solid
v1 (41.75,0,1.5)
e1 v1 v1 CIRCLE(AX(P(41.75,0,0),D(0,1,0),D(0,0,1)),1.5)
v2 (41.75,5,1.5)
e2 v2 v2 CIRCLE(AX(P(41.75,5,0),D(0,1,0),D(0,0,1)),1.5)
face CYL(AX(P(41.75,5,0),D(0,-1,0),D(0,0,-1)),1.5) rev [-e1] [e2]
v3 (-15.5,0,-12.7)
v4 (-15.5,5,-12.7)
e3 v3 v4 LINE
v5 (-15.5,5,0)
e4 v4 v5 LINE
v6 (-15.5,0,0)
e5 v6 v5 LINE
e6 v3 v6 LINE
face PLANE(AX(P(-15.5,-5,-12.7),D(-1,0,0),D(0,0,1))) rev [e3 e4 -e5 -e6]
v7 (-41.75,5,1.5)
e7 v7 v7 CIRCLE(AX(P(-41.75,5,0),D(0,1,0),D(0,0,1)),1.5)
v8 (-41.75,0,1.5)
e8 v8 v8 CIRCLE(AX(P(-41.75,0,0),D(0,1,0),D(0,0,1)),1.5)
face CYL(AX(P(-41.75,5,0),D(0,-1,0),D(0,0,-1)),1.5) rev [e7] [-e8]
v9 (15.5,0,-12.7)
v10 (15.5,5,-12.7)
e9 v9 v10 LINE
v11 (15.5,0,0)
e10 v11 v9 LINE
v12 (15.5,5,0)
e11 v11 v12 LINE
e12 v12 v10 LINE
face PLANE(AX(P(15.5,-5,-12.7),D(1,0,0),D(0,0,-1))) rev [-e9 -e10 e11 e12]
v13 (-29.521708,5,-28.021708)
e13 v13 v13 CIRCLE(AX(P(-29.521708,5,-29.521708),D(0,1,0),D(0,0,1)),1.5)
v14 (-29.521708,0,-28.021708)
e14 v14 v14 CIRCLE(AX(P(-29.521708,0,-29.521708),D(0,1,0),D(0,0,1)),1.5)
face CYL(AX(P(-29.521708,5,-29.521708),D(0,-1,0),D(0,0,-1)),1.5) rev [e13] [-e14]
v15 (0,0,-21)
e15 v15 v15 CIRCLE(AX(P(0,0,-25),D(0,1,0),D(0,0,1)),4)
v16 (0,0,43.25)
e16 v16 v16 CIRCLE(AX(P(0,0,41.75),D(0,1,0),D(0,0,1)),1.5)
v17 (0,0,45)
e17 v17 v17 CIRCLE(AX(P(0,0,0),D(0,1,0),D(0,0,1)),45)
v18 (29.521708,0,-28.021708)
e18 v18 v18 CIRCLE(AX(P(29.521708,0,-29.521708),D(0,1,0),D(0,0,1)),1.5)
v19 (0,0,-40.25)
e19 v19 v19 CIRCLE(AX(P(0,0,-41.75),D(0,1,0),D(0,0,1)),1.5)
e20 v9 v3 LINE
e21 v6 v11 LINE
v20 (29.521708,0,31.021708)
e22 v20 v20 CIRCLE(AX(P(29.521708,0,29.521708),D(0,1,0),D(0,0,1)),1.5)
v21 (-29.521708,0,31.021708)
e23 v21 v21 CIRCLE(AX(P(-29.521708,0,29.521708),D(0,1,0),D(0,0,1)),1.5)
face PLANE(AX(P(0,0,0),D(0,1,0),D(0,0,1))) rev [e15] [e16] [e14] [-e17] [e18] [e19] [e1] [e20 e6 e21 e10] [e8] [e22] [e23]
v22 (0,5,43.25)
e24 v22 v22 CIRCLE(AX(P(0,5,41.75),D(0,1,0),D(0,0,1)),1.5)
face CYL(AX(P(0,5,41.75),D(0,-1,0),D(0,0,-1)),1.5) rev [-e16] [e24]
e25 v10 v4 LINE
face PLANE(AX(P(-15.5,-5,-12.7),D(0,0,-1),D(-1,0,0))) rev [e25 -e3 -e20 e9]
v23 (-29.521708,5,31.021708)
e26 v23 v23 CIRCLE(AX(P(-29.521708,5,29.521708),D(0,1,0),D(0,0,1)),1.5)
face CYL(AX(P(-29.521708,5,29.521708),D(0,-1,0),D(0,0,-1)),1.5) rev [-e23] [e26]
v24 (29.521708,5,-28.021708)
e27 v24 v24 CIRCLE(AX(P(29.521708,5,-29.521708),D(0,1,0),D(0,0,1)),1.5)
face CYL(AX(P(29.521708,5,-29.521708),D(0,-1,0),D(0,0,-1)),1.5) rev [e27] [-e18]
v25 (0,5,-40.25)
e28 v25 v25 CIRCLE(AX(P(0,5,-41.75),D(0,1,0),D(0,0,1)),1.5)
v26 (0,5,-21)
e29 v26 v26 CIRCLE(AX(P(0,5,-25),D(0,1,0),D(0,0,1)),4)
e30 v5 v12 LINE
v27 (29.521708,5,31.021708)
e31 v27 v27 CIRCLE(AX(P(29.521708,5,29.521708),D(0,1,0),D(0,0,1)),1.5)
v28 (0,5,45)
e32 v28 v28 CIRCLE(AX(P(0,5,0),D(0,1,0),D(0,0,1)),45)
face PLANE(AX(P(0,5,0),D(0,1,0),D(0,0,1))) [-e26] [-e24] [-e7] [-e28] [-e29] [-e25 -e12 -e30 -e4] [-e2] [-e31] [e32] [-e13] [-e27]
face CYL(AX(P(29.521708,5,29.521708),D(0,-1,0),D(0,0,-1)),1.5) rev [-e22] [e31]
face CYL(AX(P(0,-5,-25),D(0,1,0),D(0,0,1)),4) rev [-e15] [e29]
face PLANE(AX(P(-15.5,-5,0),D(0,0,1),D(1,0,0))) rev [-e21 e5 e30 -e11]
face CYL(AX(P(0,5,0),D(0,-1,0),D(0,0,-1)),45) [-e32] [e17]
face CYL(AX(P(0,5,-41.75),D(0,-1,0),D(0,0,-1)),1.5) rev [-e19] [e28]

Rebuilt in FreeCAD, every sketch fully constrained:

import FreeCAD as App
import Part
import Sketcher


def add_polygon(sketch, points):
    """Adds a closed chain of lines whose ends are joined by coincident constraints."""
    first, n = sketch.GeometryCount, len(points)
    for a, b in zip(points, points[1:] + points[:1]):
        sketch.addGeometry(Part.LineSegment(App.Vector(*a, 0), App.Vector(*b, 0)), False)
    for i in range(n):
        sketch.addConstraint(Sketcher.Constraint("Coincident", first + i, 2, first + (i + 1) % n, 1))

doc = App.newDocument("Part")
body = doc.addObject("PartDesign::Body", "Body")

sketch1 = body.newObject("Sketcher::SketchObject", "Sketch")
sketch1.AttachmentSupport = (doc.getObject("XZ_Plane"), [""])
sketch1.MapMode = "FlatFace"
sketch1.addGeometry(Part.Circle(App.Vector(0, 0, 0), App.Vector(0, 0, 1), 45), False)
sketch1.addGeometry(Part.Circle(App.Vector(-29.5, -29.5, 0), App.Vector(0, 0, 1), 1.5), False)
sketch1.addGeometry(Part.Circle(App.Vector(0, -41.8, 0), App.Vector(0, 0, 1), 1.5), False)
sketch1.addGeometry(Part.Circle(App.Vector(-41.8, 0, 0), App.Vector(0, 0, 1), 1.5), False)
sketch1.addGeometry(Part.Circle(App.Vector(-29.5, 29.5, 0), App.Vector(0, 0, 1), 1.5), False)
sketch1.addGeometry(Part.Circle(App.Vector(29.5, -29.5, 0), App.Vector(0, 0, 1), 1.5), False)
sketch1.addGeometry(Part.Circle(App.Vector(41.8, 0, 0), App.Vector(0, 0, 1), 1.5), False)
sketch1.addGeometry(Part.Circle(App.Vector(0, 41.8, 0), App.Vector(0, 0, 1), 1.5), False)
sketch1.addGeometry(Part.Circle(App.Vector(29.5, 29.5, 0), App.Vector(0, 0, 1), 1.5), False)
sketch1.addConstraint(Sketcher.Constraint("Coincident", 0, 3, -1, 1))
sketch1.addConstraint(Sketcher.Constraint("Equal", 1, 2))
sketch1.addConstraint(Sketcher.Constraint("Equal", 2, 3))
sketch1.addConstraint(Sketcher.Constraint("Equal", 3, 4))
sketch1.addConstraint(Sketcher.Constraint("Equal", 4, 5))
sketch1.addConstraint(Sketcher.Constraint("Equal", 5, 6))
sketch1.addConstraint(Sketcher.Constraint("Equal", 6, 7))
sketch1.addConstraint(Sketcher.Constraint("Equal", 7, 8))
sketch1.addConstraint(Sketcher.Constraint("Symmetric", 4, 3, 5, 3, -1, 1))
sketch1.addConstraint(Sketcher.Constraint("Symmetric", 3, 3, 6, 3, -1, 1))
sketch1.addConstraint(Sketcher.Constraint("Symmetric", 2, 3, 7, 3, -1, 1))
sketch1.addConstraint(Sketcher.Constraint("Symmetric", 1, 3, 8, 3, -1, 1))
sketch1.addConstraint(Sketcher.Constraint("Symmetric", 1, 3, 5, 3, -2))
sketch1.addConstraint(Sketcher.Constraint("PointOnObject", 2, 3, -2))
sketch1.addConstraint(Sketcher.Constraint("PointOnObject", 3, 3, -1))
sketch1.addConstraint(Sketcher.Constraint("Diameter", 0, 90.0))
sketch1.addConstraint(Sketcher.Constraint("Diameter", 1, 3.0))
sketch1.addConstraint(Sketcher.Constraint("DistanceY", 2, 3, -1, 1, 41.75))
sketch1.addConstraint(Sketcher.Constraint("DistanceX", 3, 3, -1, 1, 41.75))
sketch1.addConstraint(Sketcher.Constraint("DistanceX", 1, 3, -1, 1, 29.521708))
sketch1.addConstraint(Sketcher.Constraint("DistanceY", 1, 3, -1, 1, 29.521708))
pad1 = body.newObject("PartDesign::Pad", "Pad")
pad1.Profile = sketch1
pad1.Length = 5
pad1.Reversed = True

sketch2 = body.newObject("Sketcher::SketchObject", "Sketch001")
sketch2.AttachmentSupport = (doc.getObject("XZ_Plane"), [""])
sketch2.MapMode = "FlatFace"
sketch2.AttachmentOffset = App.Placement(App.Vector(0, 0, -5), App.Rotation())
add_polygon(sketch2, [(-16, -13), (-16, 0), (16, 0), (16, -13)])
sketch2.addConstraint(Sketcher.Constraint("Vertical", 0))
sketch2.addConstraint(Sketcher.Constraint("Horizontal", 1))
sketch2.addConstraint(Sketcher.Constraint("Vertical", 2))
sketch2.addConstraint(Sketcher.Constraint("Horizontal", 3))
sketch2.addConstraint(Sketcher.Constraint("Symmetric", 0, 2, 1, 2, -1, 1))
sketch2.addConstraint(Sketcher.Constraint("DistanceX", 1, 1, 1, 2, 31.0))
sketch2.addConstraint(Sketcher.Constraint("DistanceY", 0, 1, 0, 2, 12.7))
pocket1 = body.newObject("PartDesign::Pocket", "Pocket")
pocket1.Profile = sketch2
pocket1.Length = 10
pocket1.Reversed = True

sketch3 = body.newObject("Sketcher::SketchObject", "Sketch002")
sketch3.AttachmentSupport = (doc.getObject("XZ_Plane"), [""])
sketch3.MapMode = "FlatFace"
sketch3.AttachmentOffset = App.Placement(App.Vector(0, 0, -5), App.Rotation())
sketch3.addGeometry(Part.Circle(App.Vector(0, -25, 0), App.Vector(0, 0, 1), 4), False)
sketch3.addConstraint(Sketcher.Constraint("PointOnObject", 0, 3, -2))
sketch3.addConstraint(Sketcher.Constraint("Diameter", 0, 8.0))
sketch3.addConstraint(Sketcher.Constraint("DistanceY", 0, 3, -1, 1, 25.0))
pocket2 = body.newObject("PartDesign::Pocket", "Pocket001")
pocket2.Profile = sketch3
pocket2.Length = 10
pocket2.Reversed = True

doc.recompute()
